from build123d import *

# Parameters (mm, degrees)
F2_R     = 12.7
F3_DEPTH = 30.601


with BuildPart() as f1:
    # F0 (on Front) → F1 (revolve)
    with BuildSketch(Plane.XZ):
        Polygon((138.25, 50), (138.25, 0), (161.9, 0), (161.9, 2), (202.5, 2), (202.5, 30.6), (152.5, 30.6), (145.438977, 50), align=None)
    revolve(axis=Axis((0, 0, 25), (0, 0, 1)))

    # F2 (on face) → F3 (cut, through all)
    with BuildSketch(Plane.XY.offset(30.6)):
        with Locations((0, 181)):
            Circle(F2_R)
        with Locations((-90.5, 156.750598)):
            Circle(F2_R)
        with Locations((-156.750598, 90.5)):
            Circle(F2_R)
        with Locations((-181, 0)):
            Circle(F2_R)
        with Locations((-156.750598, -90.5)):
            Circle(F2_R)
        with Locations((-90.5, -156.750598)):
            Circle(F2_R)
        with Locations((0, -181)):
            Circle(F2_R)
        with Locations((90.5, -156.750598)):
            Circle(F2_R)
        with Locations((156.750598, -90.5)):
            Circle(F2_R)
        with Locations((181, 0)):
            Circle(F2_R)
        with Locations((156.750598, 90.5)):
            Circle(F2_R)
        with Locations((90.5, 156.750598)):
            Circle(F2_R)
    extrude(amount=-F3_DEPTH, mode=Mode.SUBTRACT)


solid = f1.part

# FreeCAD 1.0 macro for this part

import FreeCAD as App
import Part
import Sketcher

V = App.Vector
Q = App.Units.Quantity


def add_polygon(sketch, points):
    """Adds a closed chain of lines whose ends are joined by coincident constraints."""
    first, n = sketch.GeometryCount, len(points)
    for a, b in zip(points, points[1:] + points[:1]):
        sketch.addGeometry(Part.LineSegment(App.Vector(*a, 0), App.Vector(*b, 0)), False)
    for i in range(n):
        sketch.addConstraint(Sketcher.Constraint("Coincident", first + i, 2, first + (i + 1) % n, 1))

doc = App.newDocument("Part")
body = doc.addObject("PartDesign::Body", "Body")

sketch1 = body.newObject("Sketcher::SketchObject", "Sketch")
sketch1.AttachmentSupport = (doc.getObject("XZ_Plane"), [""])
sketch1.MapMode = "FlatFace"
add_polygon(sketch1, [(138.25, 50), (138.25, 0), (161.9, 0), (161.9, 2), (202.5, 2), (202.5, 30.6), (152.5, 30.6), (145.438977, 50)])
sketch1.addConstraint(Sketcher.Constraint("Vertical", 0))
sketch1.addConstraint(Sketcher.Constraint("Horizontal", 1))
sketch1.addConstraint(Sketcher.Constraint("Vertical", 2))
sketch1.addConstraint(Sketcher.Constraint("Horizontal", 3))
sketch1.addConstraint(Sketcher.Constraint("Vertical", 4))
sketch1.addConstraint(Sketcher.Constraint("Horizontal", 5))
sketch1.addConstraint(Sketcher.Constraint("Horizontal", 7))
sketch1.addConstraint(Sketcher.Constraint("PointOnObject", 0, 2, -1))
sketch1.addConstraint(Sketcher.Constraint("Equal", 5, 0))
sketch1.addConstraint(Sketcher.Constraint("DistanceX", 5, 2, 5, 1, 50.0))
sketch1.addConstraint(Sketcher.Constraint("DistanceY", 2, 1, 2, 2, 2.0))
sketch1.addConstraint(Sketcher.Constraint("Angle", 6, Q("110.000001 deg")))
sketch1.addConstraint(Sketcher.Constraint("DistanceX", 3, 1, 3, 2, 40.6))
sketch1.addConstraint(Sketcher.Constraint("DistanceY", 4, 1, 4, 2, 28.6))
sketch1.addConstraint(Sketcher.Constraint("DistanceX", 1, 1, 1, 2, 23.65))
sketch1.addConstraint(Sketcher.Constraint("DistanceX", -1, 1, 1, 2, 161.9))
revolution = body.newObject("PartDesign::Revolution", "Revolution")
revolution.Profile = sketch1
revolution.ReferenceAxis = (sketch1, ["V_Axis"])
revolution.Angle = 360

sketch2 = body.newObject("Sketcher::SketchObject", "Sketch001")
sketch2.AttachmentSupport = (doc.getObject("XY_Plane"), [""])
sketch2.MapMode = "FlatFace"
sketch2.AttachmentOffset = App.Placement(V(0, 0, 30.6), App.Rotation())
sketch2.addGeometry(Part.Circle(V(0, 181, 0), V(0, 0, 1), 13), False)
sketch2.addGeometry(Part.Circle(V(-90, 157, 0), V(0, 0, 1), 13), False)
sketch2.addGeometry(Part.Circle(V(-157, 90, 0), V(0, 0, 1), 13), False)
sketch2.addGeometry(Part.Circle(V(-181, 0, 0), V(0, 0, 1), 13), False)
sketch2.addGeometry(Part.Circle(V(-157, -90, 0), V(0, 0, 1), 13), False)
sketch2.addGeometry(Part.Circle(V(-90, -157, 0), V(0, 0, 1), 13), False)
sketch2.addGeometry(Part.Circle(V(0, -181, 0), V(0, 0, 1), 13), False)
sketch2.addGeometry(Part.Circle(V(90, -157, 0), V(0, 0, 1), 13), False)
sketch2.addGeometry(Part.Circle(V(157, -90, 0), V(0, 0, 1), 13), False)
sketch2.addGeometry(Part.Circle(V(181, 0, 0), V(0, 0, 1), 13), False)
sketch2.addGeometry(Part.Circle(V(157, 90, 0), V(0, 0, 1), 13), False)
sketch2.addGeometry(Part.Circle(V(90, 157, 0), V(0, 0, 1), 13), False)
sketch2.addConstraint(Sketcher.Constraint("Equal", 0, 1))
sketch2.addConstraint(Sketcher.Constraint("Equal", 1, 2))
sketch2.addConstraint(Sketcher.Constraint("Equal", 2, 3))
sketch2.addConstraint(Sketcher.Constraint("Equal", 3, 4))
sketch2.addConstraint(Sketcher.Constraint("Equal", 4, 5))
sketch2.addConstraint(Sketcher.Constraint("Equal", 5, 6))
sketch2.addConstraint(Sketcher.Constraint("Equal", 6, 7))
sketch2.addConstraint(Sketcher.Constraint("Equal", 7, 8))
sketch2.addConstraint(Sketcher.Constraint("Equal", 8, 9))
sketch2.addConstraint(Sketcher.Constraint("Equal", 9, 10))
sketch2.addConstraint(Sketcher.Constraint("Equal", 10, 11))
sketch2.addConstraint(Sketcher.Constraint("Symmetric", 0, 3, 6, 3, -1, 1))
sketch2.addConstraint(Sketcher.Constraint("Symmetric", 1, 3, 7, 3, -1, 1))
sketch2.addConstraint(Sketcher.Constraint("Symmetric", 2, 3, 8, 3, -1, 1))
sketch2.addConstraint(Sketcher.Constraint("Symmetric", 3, 3, 9, 3, -1, 1))
sketch2.addConstraint(Sketcher.Constraint("Symmetric", 4, 3, 10, 3, -1, 1))
sketch2.addConstraint(Sketcher.Constraint("Symmetric", 5, 3, 11, 3, -1, 1))
sketch2.addConstraint(Sketcher.Constraint("Symmetric", 5, 3, 7, 3, -2))
sketch2.addConstraint(Sketcher.Constraint("Symmetric", 4, 3, 8, 3, -2))
sketch2.addConstraint(Sketcher.Constraint("PointOnObject", 0, 3, -2))
sketch2.addConstraint(Sketcher.Constraint("PointOnObject", 3, 3, -1))
sketch2.addConstraint(Sketcher.Constraint("Diameter", 0, 25.4))
sketch2.addConstraint(Sketcher.Constraint("DistanceY", -1, 1, 0, 3, 181.0))
sketch2.addConstraint(Sketcher.Constraint("DistanceX", 3, 3, -1, 1, 181.0))
sketch2.addConstraint(Sketcher.Constraint("DistanceY", 4, 3, 2, 3, 181.0))
sketch2.addConstraint(Sketcher.Constraint("DistanceX", 5, 3, 7, 3, 181.0))
sketch2.addConstraint(Sketcher.Constraint("DistanceY", -1, 1, 1, 3, 156.750598))
sketch2.addConstraint(Sketcher.Constraint("DistanceX", 2, 3, -1, 1, 156.750598))
pocket1 = body.newObject("PartDesign::Pocket", "Pocket")
pocket1.Profile = sketch2
pocket1.Type = "ThroughAll"

doc.recompute()
